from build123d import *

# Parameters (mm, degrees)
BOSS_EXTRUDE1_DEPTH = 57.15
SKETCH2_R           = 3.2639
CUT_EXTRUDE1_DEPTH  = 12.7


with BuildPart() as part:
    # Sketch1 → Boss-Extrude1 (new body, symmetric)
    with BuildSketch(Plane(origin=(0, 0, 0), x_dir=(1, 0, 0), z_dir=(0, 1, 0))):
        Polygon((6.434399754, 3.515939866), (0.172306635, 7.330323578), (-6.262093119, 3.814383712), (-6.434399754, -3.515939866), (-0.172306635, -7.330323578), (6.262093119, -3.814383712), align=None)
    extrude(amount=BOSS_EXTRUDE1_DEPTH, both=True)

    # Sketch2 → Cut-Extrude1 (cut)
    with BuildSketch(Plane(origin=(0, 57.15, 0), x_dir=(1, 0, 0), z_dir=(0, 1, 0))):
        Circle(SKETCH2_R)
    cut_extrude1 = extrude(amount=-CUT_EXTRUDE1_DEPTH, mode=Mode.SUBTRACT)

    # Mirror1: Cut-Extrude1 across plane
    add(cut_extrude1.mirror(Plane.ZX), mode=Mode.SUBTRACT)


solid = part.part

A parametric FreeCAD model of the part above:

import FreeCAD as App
import Part
import Sketcher
from FreeCAD import Vector
Q = App.Units.Quantity


def add_polygon(sketch, points):
    """Adds a closed chain of lines whose ends are joined by coincident constraints."""
    first, n = sketch.GeometryCount, len(points)
    for a, b in zip(points, points[1:] + points[:1]):
        sketch.addGeometry(Part.LineSegment(App.Vector(*a, 0), App.Vector(*b, 0)), False)
    for i in range(n):
        sketch.addConstraint(Sketcher.Constraint("Coincident", first + i, 2, first + (i + 1) % n, 1))

doc = App.newDocument("Part")
body = doc.addObject("PartDesign::Body", "Body")

sketch1 = doc.addObject("Sketcher::SketchObject", "Sketch")
body.addObject(sketch1)
sketch1.AttachmentSupport = (doc.XZ_Plane, [""])
sketch1.MapMode = "FlatFace"
add_polygon(sketch1, [(6, -4), (0, -7), (-6, -4), (-6, 4), (0, 7), (6, 4)])
sketch1.addConstraint([
    Sketcher.Constraint("Symmetric", 0, 2, 3, 2, -1, 1),
    Sketcher.Constraint("Symmetric", 1, 2, 4, 2, -1, 1),
    Sketcher.Constraint("Symmetric", 2, 2, 5, 2, -1, 1),
    Sketcher.Constraint("Equal", 0, 1),
    Sketcher.Constraint("Equal", 1, 2),
    Sketcher.Constraint("DistanceX", 2, 2, -1, 1, Q("6.4344 mm")),
    Sketcher.Constraint("DistanceX", 1, 2, 0, 2, Q("6.4344 mm")),
    Sketcher.Constraint("Distance", 0, Q("7.332348 mm")),
    Sketcher.Constraint("DistanceY", -1, 1, 2, 2, Q("3.51594 mm")),
])
pad1 = doc.addObject("PartDesign::Pad", "Pad")
body.addObject(pad1)
pad1.Profile = sketch1
pad1.Length = Q("4.5 in")
pad1.Midplane = True

sketch2 = doc.addObject("Sketcher::SketchObject", "Sketch001")
body.addObject(sketch2)
sketch2.AttachmentSupport = (doc.XZ_Plane, [""])
sketch2.MapMode = "FlatFace"
sketch2.AttachmentOffset = App.Placement(Vector(0, 0, -2.25 * 25.4), App.Rotation())
sketch2.addGeometry(Part.Circle(Vector(0, 0, 0), Vector(0, 0, 1), 3.3), False)
sketch2.addConstraint([
    Sketcher.Constraint("Coincident", 0, 3, -1, 1),
    Sketcher.Constraint("Diameter", 0, Q("0.257 in")),
])
pocket1 = doc.addObject("PartDesign::Pocket", "Pocket")
body.addObject(pocket1)
pocket1.Profile = sketch2
pocket1.Length = Q("0.5 in")
pocket1.Reversed = True
doc.recompute()

mirrored = doc.addObject("PartDesign::Mirrored", "Mirrored")
body.addObject(mirrored)
mirrored.Originals = [pocket1]
mirrored.MirrorPlane = (doc.XZ_Plane, [""])
body.Tip = mirrored

doc.recompute()
